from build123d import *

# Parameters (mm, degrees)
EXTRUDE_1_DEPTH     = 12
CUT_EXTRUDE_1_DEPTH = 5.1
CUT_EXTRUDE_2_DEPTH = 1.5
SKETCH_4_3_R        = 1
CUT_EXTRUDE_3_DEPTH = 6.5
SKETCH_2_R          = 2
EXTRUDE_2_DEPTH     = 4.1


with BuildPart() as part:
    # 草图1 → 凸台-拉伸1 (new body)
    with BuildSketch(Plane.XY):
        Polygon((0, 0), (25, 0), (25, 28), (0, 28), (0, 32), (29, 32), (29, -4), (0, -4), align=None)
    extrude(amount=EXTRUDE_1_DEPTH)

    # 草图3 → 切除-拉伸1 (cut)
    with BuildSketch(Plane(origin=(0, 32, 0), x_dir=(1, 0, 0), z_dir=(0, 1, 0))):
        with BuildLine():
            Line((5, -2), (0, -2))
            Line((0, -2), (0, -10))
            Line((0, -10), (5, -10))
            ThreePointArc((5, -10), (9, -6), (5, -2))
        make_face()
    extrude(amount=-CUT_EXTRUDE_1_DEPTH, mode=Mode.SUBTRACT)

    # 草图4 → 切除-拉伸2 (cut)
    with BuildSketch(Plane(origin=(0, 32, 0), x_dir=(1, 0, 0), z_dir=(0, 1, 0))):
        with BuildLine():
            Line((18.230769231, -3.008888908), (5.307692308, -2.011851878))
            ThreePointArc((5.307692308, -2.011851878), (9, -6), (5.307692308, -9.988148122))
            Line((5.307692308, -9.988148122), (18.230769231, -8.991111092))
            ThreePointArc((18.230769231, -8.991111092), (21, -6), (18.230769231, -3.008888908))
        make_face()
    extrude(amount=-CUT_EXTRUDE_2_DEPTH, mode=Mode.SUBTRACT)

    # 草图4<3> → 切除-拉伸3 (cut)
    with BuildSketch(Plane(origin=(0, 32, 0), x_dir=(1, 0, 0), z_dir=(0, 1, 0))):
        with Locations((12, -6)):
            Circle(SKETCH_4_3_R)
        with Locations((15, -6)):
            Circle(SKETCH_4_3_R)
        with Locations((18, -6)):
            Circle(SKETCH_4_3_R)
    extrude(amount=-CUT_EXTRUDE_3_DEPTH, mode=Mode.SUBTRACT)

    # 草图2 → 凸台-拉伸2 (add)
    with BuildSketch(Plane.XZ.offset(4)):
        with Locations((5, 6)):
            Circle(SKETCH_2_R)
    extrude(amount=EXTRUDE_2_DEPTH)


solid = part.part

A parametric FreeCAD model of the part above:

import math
import FreeCAD as App
import Part
import Sketcher


def add_polygon(sketch, points):
    """Adds a closed chain of lines whose ends are joined by coincident constraints."""
    first, n = sketch.GeometryCount, len(points)
    for a, b in zip(points, points[1:] + points[:1]):
        sketch.addGeometry(Part.LineSegment(App.Vector(*a, 0), App.Vector(*b, 0)), False)
    for i in range(n):
        sketch.addConstraint(Sketcher.Constraint("Coincident", first + i, 2, first + (i + 1) % n, 1))

doc = App.newDocument("Part")
params = doc.addObject("Spreadsheet::Sheet", "Params")
for row, (alias, value) in enumerate([
    ("sketch1_width", "25 mm"),
    ("sketch1_width2", "29 mm"),
    ("sketch1_height", "4 mm"),
    ("sketch1_height2", "36 mm"),
    ("pad1_length", "12 mm"),
    ("sketch2_radius", "4 mm"),
    ("sketch2_width", "5 mm"),
    ("pocket1_length", "5.1 mm"),
    ("sketch3_radius", "4 mm"),
    ("sketch3_radius2", "3 mm"),
    ("pocket2_length", "1.5 mm"),
    ("sketch4_diameter", "2 mm"),
    ("pocket3_length", "6.5 mm"),
    ("sketch5_diameter", "4 mm"),
    ("pad2_length", "4.1 mm"),
], start=1):
    params.set(f"A{row}", alias)
    params.set(f"B{row}", "=" + value)
    params.setAlias(f"B{row}", alias)

body = doc.addObject("PartDesign::Body", "Body")

# Sketch on XY plane
sketch1 = doc.addObject("Sketcher::SketchObject", "Sketch")
body.addObject(sketch1)
sketch1.AttachmentSupport = (doc.XY_Plane, [""])
sketch1.MapMode = "FlatFace"
add_polygon(sketch1, [(25, 0), (0, 0), (0, -4), (29, -4), (29, 32), (0, 32), (0, 28), (25, 28)])  # lines 0-7
sketch1.addConstraint(Sketcher.Constraint("Horizontal", 0))
sketch1.addConstraint(Sketcher.Constraint("Vertical", 1))
sketch1.addConstraint(Sketcher.Constraint("Horizontal", 2))
sketch1.addConstraint(Sketcher.Constraint("Vertical", 3))
sketch1.addConstraint(Sketcher.Constraint("Horizontal", 4))
sketch1.addConstraint(Sketcher.Constraint("Vertical", 5))
sketch1.addConstraint(Sketcher.Constraint("Horizontal", 6))
sketch1.addConstraint(Sketcher.Constraint("Vertical", 7))
sketch1.addConstraint(Sketcher.Constraint("Coincident", 0, 2, -1, 1))
sketch1.addConstraint(Sketcher.Constraint("PointOnObject", 4, 2, -2))
sketch1.addConstraint(Sketcher.Constraint("Equal", 1, 5))
sketch1.addConstraint(Sketcher.Constraint("DistanceX", 0, 2, 0, 1, 25.0))
sketch1.addConstraint(Sketcher.Constraint("DistanceX", 2, 1, 2, 2, 29.0))
sketch1.addConstraint(Sketcher.Constraint("DistanceY", 1, 2, 1, 1, 4.0))
sketch1.addConstraint(Sketcher.Constraint("DistanceY", 3, 1, 3, 2, 36.0))
sketch1.setExpression("Constraints[19]", "Params.sketch1_width")
sketch1.setExpression("Constraints[20]", "Params.sketch1_width2")
sketch1.setExpression("Constraints[21]", "Params.sketch1_height")
sketch1.setExpression("Constraints[22]", "Params.sketch1_height2")
pad1 = doc.addObject("PartDesign::Pad", "Pad")
body.addObject(pad1)
pad1.Profile = sketch1
pad1.setExpression("Length", "Params.pad1_length")

# Sketch on XZ plane
sketch2 = doc.addObject("Sketcher::SketchObject", "Sketch001")
body.addObject(sketch2)
sketch2.AttachmentSupport = (doc.XZ_Plane, [""])
sketch2.MapMode = "FlatFace"
sketch2.AttachmentOffset = App.Placement(App.Vector(0, 0, -32), App.Rotation())
sketch2.addGeometry(Part.LineSegment(App.Vector(5, 2, 0), App.Vector(0, 2, 0)), False)
sketch2.addGeometry(Part.LineSegment(App.Vector(0, 2, 0), App.Vector(0, 10, 0)), False)
sketch2.addGeometry(Part.LineSegment(App.Vector(0, 10, 0), App.Vector(5, 10, 0)), False)
sketch2.addGeometry(Part.ArcOfCircle(Part.Circle(App.Vector(5, 6, 0), App.Vector(0, 0, 1), 4), math.radians(-90), math.radians(90)), False)
sketch2.addConstraint(Sketcher.Constraint("Coincident", 0, 2, 1, 1))
sketch2.addConstraint(Sketcher.Constraint("Coincident", 1, 2, 2, 1))
sketch2.addConstraint(Sketcher.Constraint("Tangent", 2, 2, 3, 2))
sketch2.addConstraint(Sketcher.Constraint("Tangent", 3, 1, 0, 1))
sketch2.addConstraint(Sketcher.Constraint("Horizontal", 0))
sketch2.addConstraint(Sketcher.Constraint("Vertical", 1))
sketch2.addConstraint(Sketcher.Constraint("Horizontal", 2))
sketch2.addConstraint(Sketcher.Constraint("PointOnObject", 0, 2, -2))
sketch2.addConstraint(Sketcher.Constraint("Radius", 3, 4.0))
sketch2.addConstraint(Sketcher.Constraint("DistanceX", 0, 2, 0, 1, 5.0))
sketch2.addConstraint(Sketcher.Constraint("DistanceY", -1, 1, 3, 3, 6.0))
sketch2.setExpression("Constraints[8]", "Params.sketch2_radius")
sketch2.setExpression("Constraints[9]", "Params.sketch2_width")
pocket1 = doc.addObject("PartDesign::Pocket", "Pocket")
body.addObject(pocket1)
pocket1.Profile = sketch2
pocket1.setExpression("Length", "Params.pocket1_length")
pocket1.Reversed = True

# Sketch on XZ plane
sketch3 = doc.addObject("Sketcher::SketchObject", "Sketch002")
body.addObject(sketch3)
sketch3.AttachmentSupport = (doc.XZ_Plane, [""])
sketch3.MapMode = "FlatFace"
sketch3.AttachmentOffset = App.Placement(App.Vector(0, 0, -32), App.Rotation())
sketch3.addGeometry(Part.LineSegment(App.Vector(18.2, 3, 0), App.Vector(5.3, 2, 0)), False)
sketch3.addGeometry(Part.ArcOfCircle(Part.Circle(App.Vector(5, 6, 0), App.Vector(0, 0, 1), 4), math.radians(-86), math.radians(86)), False)
sketch3.addGeometry(Part.LineSegment(App.Vector(5.3, 10, 0), App.Vector(18.2, 9, 0)), False)
sketch3.addGeometry(Part.ArcOfCircle(Part.Circle(App.Vector(18, 6, 0), App.Vector(0, 0, 1), 3), math.radians(-86), math.radians(86)), False)
sketch3.addConstraint(Sketcher.Constraint("Tangent", 0, 2, 1, 1))
sketch3.addConstraint(Sketcher.Constraint("Tangent", 1, 2, 2, 1))
sketch3.addConstraint(Sketcher.Constraint("Tangent", 2, 2, 3, 2))
sketch3.addConstraint(Sketcher.Constraint("Tangent", 3, 1, 0, 1))
sketch3.addConstraint(Sketcher.Constraint("Horizontal", 1, 3, 3, 3))
sketch3.addConstraint(Sketcher.Constraint("Radius", 1, 4.0))
sketch3.addConstraint(Sketcher.Constraint("Radius", 3, 3.0))
sketch3.addConstraint(Sketcher.Constraint("DistanceX", -1, 1, 1, 3, 5.0))
sketch3.addConstraint(Sketcher.Constraint("DistanceY", -1, 1, 1, 3, 6.0))
sketch3.addConstraint(Sketcher.Constraint("DistanceX", -1, 1, 3, 3, 18.0))
sketch3.setExpression("Constraints[5]", "Params.sketch3_radius")
sketch3.setExpression("Constraints[6]", "Params.sketch3_radius2")
pocket2 = doc.addObject("PartDesign::Pocket", "Pocket001")
body.addObject(pocket2)
pocket2.Profile = sketch3
pocket2.setExpression("Length", "Params.pocket2_length")
pocket2.Reversed = True

# Sketch on XZ plane
sketch4 = doc.addObject("Sketcher::SketchObject", "Sketch003")
body.addObject(sketch4)
sketch4.AttachmentSupport = (doc.XZ_Plane, [""])
sketch4.MapMode = "FlatFace"
sketch4.AttachmentOffset = App.Placement(App.Vector(0, 0, -32), App.Rotation())
sketch4.addGeometry(Part.Circle(App.Vector(12, 6, 0), App.Vector(0, 0, 1), 1), False)
sketch4.addGeometry(Part.Circle(App.Vector(15, 6, 0), App.Vector(0, 0, 1), 1), False)
sketch4.addGeometry(Part.Circle(App.Vector(18, 6, 0), App.Vector(0, 0, 1), 1), False)
sketch4.addConstraint(Sketcher.Constraint("Equal", 0, 1))
sketch4.addConstraint(Sketcher.Constraint("Equal", 1, 2))
sketch4.addConstraint(Sketcher.Constraint("Horizontal", 0, 3, 1, 3))
sketch4.addConstraint(Sketcher.Constraint("Horizontal", 1, 3, 2, 3))
sketch4.addConstraint(Sketcher.Constraint("Diameter", 0, 2.0))
sketch4.addConstraint(Sketcher.Constraint("DistanceX", -1, 1, 0, 3, 12.0))
sketch4.addConstraint(Sketcher.Constraint("DistanceY", -1, 1, 0, 3, 6.0))
sketch4.addConstraint(Sketcher.Constraint("DistanceX", -1, 1, 1, 3, 15.0))
sketch4.addConstraint(Sketcher.Constraint("DistanceX", -1, 1, 2, 3, 18.0))
sketch4.setExpression("Constraints[4]", "Params.sketch4_diameter")
pocket3 = doc.addObject("PartDesign::Pocket", "Pocket002")
body.addObject(pocket3)
pocket3.Profile = sketch4
pocket3.setExpression("Length", "Params.pocket3_length")
pocket3.Reversed = True

# Sketch on XZ plane
sketch5 = doc.addObject("Sketcher::SketchObject", "Sketch004")
body.addObject(sketch5)
sketch5.AttachmentSupport = (doc.XZ_Plane, [""])
sketch5.MapMode = "FlatFace"
sketch5.AttachmentOffset = App.Placement(App.Vector(0, 0, 4), App.Rotation())
sketch5.addGeometry(Part.Circle(App.Vector(5, 6, 0), App.Vector(0, 0, 1), 2), False)
sketch5.addConstraint(Sketcher.Constraint("Diameter", 0, 4.0))
sketch5.addConstraint(Sketcher.Constraint("DistanceX", -1, 1, 0, 3, 5.0))
sketch5.addConstraint(Sketcher.Constraint("DistanceY", -1, 1, 0, 3, 6.0))
sketch5.setExpression("Constraints[0]", "Params.sketch5_diameter")
pad2 = doc.addObject("PartDesign::Pad", "Pad001")
body.addObject(pad2)
pad2.Profile = sketch5
pad2.setExpression("Length", "Params.pad2_length")

doc.recompute()
